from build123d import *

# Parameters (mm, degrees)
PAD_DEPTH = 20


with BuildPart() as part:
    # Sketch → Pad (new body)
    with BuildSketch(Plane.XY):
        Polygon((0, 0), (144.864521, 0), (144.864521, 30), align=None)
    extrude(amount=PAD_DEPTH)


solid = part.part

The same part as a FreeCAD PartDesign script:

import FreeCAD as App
import Part
import Sketcher
Q = App.Units.Quantity


def add_polygon(sketch, points):
    """Adds a closed chain of lines whose ends are joined by coincident constraints."""
    first, n = sketch.GeometryCount, len(points)
    for a, b in zip(points, points[1:] + points[:1]):
        sketch.addGeometry(Part.LineSegment(App.Vector(*a, 0), App.Vector(*b, 0)), False)
    for i in range(n):
        sketch.addConstraint(Sketcher.Constraint("Coincident", first + i, 2, first + (i + 1) % n, 1))

doc = App.newDocument("Part")
body = doc.addObject("PartDesign::Body", "Body")

sketch1 = body.newObject("Sketcher::SketchObject", "Sketch")
sketch1.AttachmentSupport = (doc.getObject("XY_Plane"), [""])
sketch1.MapMode = "FlatFace"
add_polygon(sketch1, [(0, 0), (145, 0), (145, 30)])
sketch1.addConstraint([
    Sketcher.Constraint("Horizontal", 0),
    Sketcher.Constraint("Vertical", 1),
    Sketcher.Constraint("Coincident", 2, 2, -1, 1),
    Sketcher.Constraint("DistanceY", 1, 1, 1, 2, 30.0),
    Sketcher.Constraint("Angle", 2, Q("-168.3 deg")),
])
pad1 = body.newObject("PartDesign::Pad", "Pad")
pad1.Profile = sketch1
pad1.Length = 20

doc.recompute()
